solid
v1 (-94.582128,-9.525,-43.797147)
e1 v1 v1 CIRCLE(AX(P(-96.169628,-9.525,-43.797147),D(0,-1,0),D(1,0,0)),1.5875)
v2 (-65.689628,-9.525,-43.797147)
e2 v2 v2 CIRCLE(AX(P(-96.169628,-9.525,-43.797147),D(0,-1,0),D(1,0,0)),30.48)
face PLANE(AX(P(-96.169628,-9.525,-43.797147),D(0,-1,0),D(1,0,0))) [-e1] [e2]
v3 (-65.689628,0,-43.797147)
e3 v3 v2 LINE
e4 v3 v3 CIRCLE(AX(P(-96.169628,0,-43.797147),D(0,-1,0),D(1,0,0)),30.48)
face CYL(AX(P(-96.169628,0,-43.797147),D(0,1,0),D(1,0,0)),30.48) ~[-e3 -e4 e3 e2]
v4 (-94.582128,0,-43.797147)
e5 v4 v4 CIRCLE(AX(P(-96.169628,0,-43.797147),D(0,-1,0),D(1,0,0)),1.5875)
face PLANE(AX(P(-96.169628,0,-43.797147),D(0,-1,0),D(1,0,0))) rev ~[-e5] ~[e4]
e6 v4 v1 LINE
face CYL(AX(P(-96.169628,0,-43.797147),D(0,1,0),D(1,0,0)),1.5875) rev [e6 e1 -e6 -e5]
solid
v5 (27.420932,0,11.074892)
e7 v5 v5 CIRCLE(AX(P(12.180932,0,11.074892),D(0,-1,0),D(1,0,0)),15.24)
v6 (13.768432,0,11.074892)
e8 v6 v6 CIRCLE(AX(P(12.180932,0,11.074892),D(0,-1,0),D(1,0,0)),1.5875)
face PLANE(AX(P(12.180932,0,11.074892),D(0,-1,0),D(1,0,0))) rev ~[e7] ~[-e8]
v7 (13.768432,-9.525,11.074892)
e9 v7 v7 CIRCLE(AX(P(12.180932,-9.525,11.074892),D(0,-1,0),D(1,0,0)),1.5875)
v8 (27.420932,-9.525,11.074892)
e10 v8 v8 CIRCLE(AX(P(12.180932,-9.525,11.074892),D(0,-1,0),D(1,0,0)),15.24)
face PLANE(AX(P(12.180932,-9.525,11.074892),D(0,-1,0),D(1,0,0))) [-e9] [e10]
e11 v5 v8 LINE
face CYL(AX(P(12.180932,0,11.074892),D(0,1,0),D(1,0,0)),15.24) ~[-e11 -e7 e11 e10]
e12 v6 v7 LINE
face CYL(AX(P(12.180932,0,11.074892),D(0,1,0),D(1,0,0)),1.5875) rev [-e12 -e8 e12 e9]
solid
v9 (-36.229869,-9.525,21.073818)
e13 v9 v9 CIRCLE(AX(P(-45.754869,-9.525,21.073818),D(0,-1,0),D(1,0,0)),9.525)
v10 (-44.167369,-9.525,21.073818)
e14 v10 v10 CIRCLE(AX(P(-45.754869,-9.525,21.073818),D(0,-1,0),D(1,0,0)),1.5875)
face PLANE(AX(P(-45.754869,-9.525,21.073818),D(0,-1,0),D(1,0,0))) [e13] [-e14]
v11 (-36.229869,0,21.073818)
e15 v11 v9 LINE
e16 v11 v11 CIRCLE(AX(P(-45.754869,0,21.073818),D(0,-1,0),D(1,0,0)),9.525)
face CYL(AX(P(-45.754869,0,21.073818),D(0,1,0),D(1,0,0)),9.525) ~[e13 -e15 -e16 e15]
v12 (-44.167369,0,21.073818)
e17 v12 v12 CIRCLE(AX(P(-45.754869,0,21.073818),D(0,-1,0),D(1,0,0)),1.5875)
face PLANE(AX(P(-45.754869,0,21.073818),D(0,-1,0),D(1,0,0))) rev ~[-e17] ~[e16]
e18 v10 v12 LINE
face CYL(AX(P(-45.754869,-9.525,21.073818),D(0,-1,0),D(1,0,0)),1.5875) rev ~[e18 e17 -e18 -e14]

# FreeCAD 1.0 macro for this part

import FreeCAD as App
import Part
import Sketcher
Q = App.Units.Quantity

doc = App.newDocument("Part")
body = doc.addObject("PartDesign::Body", "Body")

# Sketch on XZ plane
sketch1 = body.newObject("Sketcher::SketchObject", "Sketch")
sketch1.AttachmentSupport = (doc.getObject("XZ_Plane"), [""])
sketch1.MapMode = "FlatFace"
sketch1.addGeometry(Part.Circle(App.Vector(-46, 21, 0), App.Vector(0, 0, 1), 10), False)
sketch1.addConstraint([
    Sketcher.Constraint("Diameter", 0, Q("0.75 in")),
    Sketcher.Constraint("DistanceX", 0, 3, -1, 1, Q("45.754869 mm")),
    Sketcher.Constraint("DistanceY", -1, 1, 0, 3, Q("21.073818 mm")),
])
pad1 = body.newObject("PartDesign::Pad", "Pad")
pad1.Profile = sketch1
pad1.Length = Q("0.375 in")

# Sketch on XZ plane
sketch2 = body.newObject("Sketcher::SketchObject", "Sketch001")
sketch2.AttachmentSupport = (doc.getObject("XZ_Plane"), [""])
sketch2.MapMode = "FlatFace"
sketch2.AttachmentOffset = App.Placement(App.Vector(0, 0, 0.375 * 25.4), App.Rotation())
sketch2.addGeometry(Part.Circle(App.Vector(-45.8, 21.1, 0), App.Vector(0, 0, 1), 1.6), False)
sketch2.addConstraint([
    Sketcher.Constraint("Diameter", 0, Q("0.125 in")),
    Sketcher.Constraint("DistanceX", 0, 3, -1, 1, Q("45.754869 mm")),
    Sketcher.Constraint("DistanceY", -1, 1, 0, 3, Q("21.073818 mm")),
])
pocket1 = body.newObject("PartDesign::Pocket", "Pocket")
pocket1.Profile = sketch2
pocket1.Length = Q("1 in")
body2 = doc.addObject("PartDesign::Body", "Body001")
body2.AllowCompound = True

# Sketch on XZ plane
sketch3 = body2.newObject("Sketcher::SketchObject", "Sketch002")
sketch3.AttachmentSupport = (doc.getObject("XZ_Plane001"), [""])
sketch3.MapMode = "FlatFace"
sketch3.addGeometry([
    Part.Circle(App.Vector(12.2, 11.1, 0), App.Vector(0, 0, 1), 15.2),
    Part.Circle(App.Vector(12.2, 11.1, 0), App.Vector(0, 0, 1), 1.6),
    Part.Circle(App.Vector(-96.2, -43.8, 0), App.Vector(0, 0, 1), 30.5),
    Part.Circle(App.Vector(-96.2, -43.8, 0), App.Vector(0, 0, 1), 1.6),
], False)
sketch3.addConstraint([
    Sketcher.Constraint("Coincident", 1, 3, 0, 3),
    Sketcher.Constraint("Coincident", 3, 3, 2, 3),
    Sketcher.Constraint("Equal", 1, 3),
    Sketcher.Constraint("Diameter", 0, Q("1.2 in")),
    Sketcher.Constraint("Diameter", 2, Q("2.4 in")),
    Sketcher.Constraint("Diameter", 1, Q("0.125 in")),
    Sketcher.Constraint("DistanceX", 2, 3, -1, 1, Q("96.169628 mm")),
    Sketcher.Constraint("DistanceX", 2, 3, 0, 3, Q("108.35056 mm")),
    Sketcher.Constraint("DistanceY", 2, 3, 0, 3, Q("54.872039 mm")),
    Sketcher.Constraint("DistanceY", -1, 1, 0, 3, Q("11.074892 mm")),
])
pad2 = body2.newObject("PartDesign::Pad", "Pad001")
pad2.Profile = sketch3
pad2.Length = Q("0.375 in")

doc.recompute()
